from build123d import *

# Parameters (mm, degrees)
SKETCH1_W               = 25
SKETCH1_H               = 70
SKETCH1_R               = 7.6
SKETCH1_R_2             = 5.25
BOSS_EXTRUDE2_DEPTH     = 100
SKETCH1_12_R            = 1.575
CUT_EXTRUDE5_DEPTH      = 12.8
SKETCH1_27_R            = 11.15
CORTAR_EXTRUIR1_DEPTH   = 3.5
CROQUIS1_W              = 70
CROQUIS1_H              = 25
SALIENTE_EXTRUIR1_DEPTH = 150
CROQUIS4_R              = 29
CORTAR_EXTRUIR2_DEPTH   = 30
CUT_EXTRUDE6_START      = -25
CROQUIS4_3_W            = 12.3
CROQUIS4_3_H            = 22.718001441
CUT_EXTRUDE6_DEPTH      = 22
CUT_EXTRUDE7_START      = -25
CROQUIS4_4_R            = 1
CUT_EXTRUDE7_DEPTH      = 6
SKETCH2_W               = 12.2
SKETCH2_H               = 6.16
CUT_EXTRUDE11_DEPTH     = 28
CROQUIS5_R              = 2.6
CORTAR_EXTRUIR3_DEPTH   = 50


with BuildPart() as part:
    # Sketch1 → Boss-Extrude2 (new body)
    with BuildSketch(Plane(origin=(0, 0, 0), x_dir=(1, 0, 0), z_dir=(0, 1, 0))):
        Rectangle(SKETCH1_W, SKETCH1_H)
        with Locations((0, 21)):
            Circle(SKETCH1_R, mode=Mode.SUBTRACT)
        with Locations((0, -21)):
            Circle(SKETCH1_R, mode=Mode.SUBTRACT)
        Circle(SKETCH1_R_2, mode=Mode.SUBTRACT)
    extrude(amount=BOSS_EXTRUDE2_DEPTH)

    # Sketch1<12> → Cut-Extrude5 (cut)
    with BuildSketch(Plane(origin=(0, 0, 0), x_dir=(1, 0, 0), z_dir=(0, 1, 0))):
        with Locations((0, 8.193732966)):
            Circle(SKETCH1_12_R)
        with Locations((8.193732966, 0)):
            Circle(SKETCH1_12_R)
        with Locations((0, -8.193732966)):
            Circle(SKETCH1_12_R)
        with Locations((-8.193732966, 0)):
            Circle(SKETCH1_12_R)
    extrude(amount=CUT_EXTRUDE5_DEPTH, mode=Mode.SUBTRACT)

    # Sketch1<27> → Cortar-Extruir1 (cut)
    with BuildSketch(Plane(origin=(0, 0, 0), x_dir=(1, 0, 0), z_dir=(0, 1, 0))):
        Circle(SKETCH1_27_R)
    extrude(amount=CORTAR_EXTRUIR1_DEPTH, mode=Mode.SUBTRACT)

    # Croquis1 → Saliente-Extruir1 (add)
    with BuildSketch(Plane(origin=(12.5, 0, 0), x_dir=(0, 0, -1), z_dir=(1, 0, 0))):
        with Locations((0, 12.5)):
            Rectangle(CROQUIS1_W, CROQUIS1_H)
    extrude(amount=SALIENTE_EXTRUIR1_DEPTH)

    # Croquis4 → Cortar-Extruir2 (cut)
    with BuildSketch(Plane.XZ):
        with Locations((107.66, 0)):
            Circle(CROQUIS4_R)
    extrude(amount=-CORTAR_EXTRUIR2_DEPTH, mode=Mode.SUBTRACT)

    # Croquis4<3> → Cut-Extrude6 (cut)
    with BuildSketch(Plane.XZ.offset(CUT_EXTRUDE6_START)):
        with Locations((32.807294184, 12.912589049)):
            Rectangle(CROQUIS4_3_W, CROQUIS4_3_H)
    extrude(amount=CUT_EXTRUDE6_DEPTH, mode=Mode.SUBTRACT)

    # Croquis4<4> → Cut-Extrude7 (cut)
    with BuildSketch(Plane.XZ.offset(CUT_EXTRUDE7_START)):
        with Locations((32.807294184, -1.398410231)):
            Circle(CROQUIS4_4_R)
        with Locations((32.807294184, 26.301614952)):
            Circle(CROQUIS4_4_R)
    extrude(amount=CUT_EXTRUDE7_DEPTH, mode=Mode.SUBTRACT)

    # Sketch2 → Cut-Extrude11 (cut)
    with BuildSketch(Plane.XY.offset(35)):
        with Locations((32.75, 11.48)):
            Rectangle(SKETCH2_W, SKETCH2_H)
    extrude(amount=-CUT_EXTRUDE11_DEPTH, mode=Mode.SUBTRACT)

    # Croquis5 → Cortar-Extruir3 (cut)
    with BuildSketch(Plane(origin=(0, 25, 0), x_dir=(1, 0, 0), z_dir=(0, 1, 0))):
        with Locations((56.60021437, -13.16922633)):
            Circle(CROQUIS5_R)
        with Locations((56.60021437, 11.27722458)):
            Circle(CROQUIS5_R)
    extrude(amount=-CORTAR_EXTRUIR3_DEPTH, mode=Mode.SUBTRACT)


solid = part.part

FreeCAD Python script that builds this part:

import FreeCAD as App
import Part
import Sketcher
from FreeCAD import Vector
Q = App.Units.Quantity


def add_polygon(sketch, points):
    """Adds a closed chain of lines whose ends are joined by coincident constraints."""
    first, n = sketch.GeometryCount, len(points)
    for a, b in zip(points, points[1:] + points[:1]):
        sketch.addGeometry(Part.LineSegment(App.Vector(*a, 0), App.Vector(*b, 0)), False)
    for i in range(n):
        sketch.addConstraint(Sketcher.Constraint("Coincident", first + i, 2, first + (i + 1) % n, 1))

doc = App.newDocument("Part")
body = doc.addObject("PartDesign::Body", "Body")

# Sketch on XZ plane
sketch1 = body.newObject("Sketcher::SketchObject", "Sketch")
sketch1.AttachmentSupport = (doc.getObject("XZ_Plane"), [""])
sketch1.MapMode = "FlatFace"
add_polygon(sketch1, [(-12, -35), (-12, 35), (12, 35), (12, -35)])  # lines 0-3
sketch1.addGeometry(Part.Circle(Vector(0, 21, 0), Vector(0, 0, 1), 8), False)  # 4
sketch1.addGeometry(Part.Circle(Vector(0, 0, 0), Vector(0, 0, 1), 5), False)  # 5
sketch1.addGeometry(Part.Circle(Vector(0, -21, 0), Vector(0, 0, 1), 8), False)  # 6
sketch1.addConstraint(Sketcher.Constraint("Vertical", 0))
sketch1.addConstraint(Sketcher.Constraint("Horizontal", 1))
sketch1.addConstraint(Sketcher.Constraint("Vertical", 2))
sketch1.addConstraint(Sketcher.Constraint("Horizontal", 3))
sketch1.addConstraint(Sketcher.Constraint("Coincident", 5, 3, -1, 1))
sketch1.addConstraint(Sketcher.Constraint("Equal", 4, 6))
sketch1.addConstraint(Sketcher.Constraint("Symmetric", 4, 3, 6, 3, -1, 1))
sketch1.addConstraint(Sketcher.Constraint("Symmetric", 0, 2, 2, 2, -1, 1))
sketch1.addConstraint(Sketcher.Constraint("PointOnObject", 4, 3, -2))
sketch1.addConstraint(Sketcher.Constraint("Diameter", 4, Q("15.2 mm")))
sketch1.addConstraint(Sketcher.Constraint("Diameter", 5, Q("10.5 mm")))
sketch1.addConstraint(Sketcher.Constraint("DistanceX", 1, 1, 1, 2, Q("25 mm")))
sketch1.addConstraint(Sketcher.Constraint("DistanceY", 0, 1, 0, 2, Q("70 mm")))
sketch1.addConstraint(Sketcher.Constraint("DistanceY", -1, 1, 4, 3, Q("21 mm")))
pad1 = body.newObject("PartDesign::Pad", "Pad")
pad1.Profile = sketch1
pad1.Length = 100
pad1.Reversed = True

# Sketch on XZ plane
sketch2 = body.newObject("Sketcher::SketchObject", "Sketch001")
sketch2.AttachmentSupport = (doc.getObject("XZ_Plane"), [""])
sketch2.MapMode = "FlatFace"
sketch2.addGeometry(Part.Circle(Vector(0, -8.2, 0), Vector(0, 0, 1), 1.6), False)
sketch2.addGeometry(Part.Circle(Vector(8.2, 0, 0), Vector(0, 0, 1), 1.6), False)
sketch2.addGeometry(Part.Circle(Vector(0, 8.2, 0), Vector(0, 0, 1), 1.6), False)
sketch2.addGeometry(Part.Circle(Vector(-8.2, 0, 0), Vector(0, 0, 1), 1.6), False)
sketch2.addConstraint(Sketcher.Constraint("Equal", 0, 1))
sketch2.addConstraint(Sketcher.Constraint("Equal", 1, 2))
sketch2.addConstraint(Sketcher.Constraint("Equal", 2, 3))
sketch2.addConstraint(Sketcher.Constraint("Symmetric", 0, 3, 2, 3, -1, 1))
sketch2.addConstraint(Sketcher.Constraint("Symmetric", 1, 3, 3, 3, -1, 1))
sketch2.addConstraint(Sketcher.Constraint("PointOnObject", 0, 3, -2))
sketch2.addConstraint(Sketcher.Constraint("PointOnObject", 1, 3, -1))
sketch2.addConstraint(Sketcher.Constraint("Diameter", 0, Q("3.15 mm")))
sketch2.addConstraint(Sketcher.Constraint("DistanceY", 0, 3, -1, 1, Q("8.193733 mm")))
sketch2.addConstraint(Sketcher.Constraint("DistanceX", -1, 1, 1, 3, Q("8.193733 mm")))
pocket1 = body.newObject("PartDesign::Pocket", "Pocket")
pocket1.Profile = sketch2
pocket1.Length = 12.8

# Sketch on XZ plane
sketch3 = body.newObject("Sketcher::SketchObject", "Sketch002")
sketch3.AttachmentSupport = (doc.getObject("XZ_Plane"), [""])
sketch3.MapMode = "FlatFace"
sketch3.addGeometry(Part.Circle(Vector(0, 0, 0), Vector(0, 0, 1), 11), False)
sketch3.addConstraint(Sketcher.Constraint("Coincident", 0, 3, -1, 1))
sketch3.addConstraint(Sketcher.Constraint("Diameter", 0, Q("22.3 mm")))
pocket2 = body.newObject("PartDesign::Pocket", "Pocket001")
pocket2.Profile = sketch3
pocket2.Length = 3.5

# Sketch on YZ plane
sketch4 = body.newObject("Sketcher::SketchObject", "Sketch003")
sketch4.AttachmentSupport = (doc.getObject("YZ_Plane"), [""])
sketch4.MapMode = "FlatFace"
sketch4.AttachmentOffset = App.Placement(Vector(0, 0, 12.5), App.Rotation())
add_polygon(sketch4, [(25, 35), (0, 35), (0, -35), (25, -35)])  # lines 0-3
sketch4.addConstraint(Sketcher.Constraint("Horizontal", 0))
sketch4.addConstraint(Sketcher.Constraint("Vertical", 1))
sketch4.addConstraint(Sketcher.Constraint("Horizontal", 2))
sketch4.addConstraint(Sketcher.Constraint("Vertical", 3))
sketch4.addConstraint(Sketcher.Constraint("Symmetric", 0, 2, 1, 2, -1, 1))
sketch4.addConstraint(Sketcher.Constraint("DistanceX", 0, 2, 0, 1, Q("25 mm")))
sketch4.addConstraint(Sketcher.Constraint("DistanceY", 1, 2, 1, 1, Q("70 mm")))
pad2 = body.newObject("PartDesign::Pad", "Pad001")
pad2.Profile = sketch4
pad2.Length = 150

# Sketch on XZ plane
sketch5 = body.newObject("Sketcher::SketchObject", "Sketch004")
sketch5.AttachmentSupport = (doc.getObject("XZ_Plane"), [""])
sketch5.MapMode = "FlatFace"
sketch5.addGeometry(Part.Circle(Vector(108, 0, 0), Vector(0, 0, 1), 29), False)
sketch5.addConstraint(Sketcher.Constraint("PointOnObject", 0, 3, -1))
sketch5.addConstraint(Sketcher.Constraint("Diameter", 0, Q("58 mm")))
sketch5.addConstraint(Sketcher.Constraint("DistanceX", -1, 1, 0, 3, Q("107.66 mm")))
pocket3 = body.newObject("PartDesign::Pocket", "Pocket002")
pocket3.Profile = sketch5
pocket3.Length = 30

# Sketch on XZ plane
sketch6 = body.newObject("Sketcher::SketchObject", "Sketch005")
sketch6.AttachmentSupport = (doc.getObject("XZ_Plane"), [""])
sketch6.MapMode = "FlatFace"
sketch6.AttachmentOffset = App.Placement(Vector(0, 0, -25), App.Rotation())
add_polygon(sketch6, [(27, 24), (27, 2), (39, 2), (39, 24)])  # lines 0-3
sketch6.addConstraint(Sketcher.Constraint("Vertical", 0))
sketch6.addConstraint(Sketcher.Constraint("Horizontal", 1))
sketch6.addConstraint(Sketcher.Constraint("Vertical", 2))
sketch6.addConstraint(Sketcher.Constraint("Horizontal", 3))
sketch6.addConstraint(Sketcher.Constraint("DistanceX", 1, 1, 1, 2, Q("12.3 mm")))
sketch6.addConstraint(Sketcher.Constraint("DistanceY", 0, 2, 0, 1, Q("22.718001 mm")))
sketch6.addConstraint(Sketcher.Constraint("DistanceY", -1, 1, 0, 2, Q("1.553588 mm")))
sketch6.addConstraint(Sketcher.Constraint("DistanceX", -1, 1, 0, 2, Q("26.657294 mm")))
pocket4 = body.newObject("PartDesign::Pocket", "Pocket003")
pocket4.Profile = sketch6
pocket4.Length = 22
pocket4.Reversed = True

# Sketch on XZ plane
sketch7 = body.newObject("Sketcher::SketchObject", "Sketch006")
sketch7.AttachmentSupport = (doc.getObject("XZ_Plane"), [""])
sketch7.MapMode = "FlatFace"
sketch7.AttachmentOffset = App.Placement(Vector(0, 0, -25), App.Rotation())
sketch7.addGeometry(Part.Circle(Vector(32.8, -1.4, 0), Vector(0, 0, 1), 1), False)
sketch7.addGeometry(Part.Circle(Vector(32.8, 26.3, 0), Vector(0, 0, 1), 1), False)
sketch7.addConstraint(Sketcher.Constraint("Equal", 0, 1))
sketch7.addConstraint(Sketcher.Constraint("Vertical", 0, 3, 1, 3))
sketch7.addConstraint(Sketcher.Constraint("Diameter", 0, Q("2 mm")))
sketch7.addConstraint(Sketcher.Constraint("DistanceY", 0, 3, -1, 1, Q("1.39841 mm")))
sketch7.addConstraint(Sketcher.Constraint("DistanceX", -1, 1, 0, 3, Q("32.807294 mm")))
sketch7.addConstraint(Sketcher.Constraint("DistanceY", -1, 1, 1, 3, Q("26.301615 mm")))
pocket5 = body.newObject("PartDesign::Pocket", "Pocket004")
pocket5.Profile = sketch7
pocket5.Length = 6
pocket5.Reversed = True

# Sketch on XY plane
sketch8 = body.newObject("Sketcher::SketchObject", "Sketch007")
sketch8.AttachmentSupport = (doc.getObject("XY_Plane"), [""])
sketch8.MapMode = "FlatFace"
sketch8.AttachmentOffset = App.Placement(Vector(0, 0, 35), App.Rotation())
add_polygon(sketch8, [(27, 15), (27, 8), (39, 8), (39, 15)])  # lines 0-3
sketch8.addConstraint(Sketcher.Constraint("Vertical", 0))
sketch8.addConstraint(Sketcher.Constraint("Horizontal", 1))
sketch8.addConstraint(Sketcher.Constraint("Vertical", 2))
sketch8.addConstraint(Sketcher.Constraint("Horizontal", 3))
sketch8.addConstraint(Sketcher.Constraint("DistanceX", 1, 1, 1, 2, Q("12.2 mm")))
sketch8.addConstraint(Sketcher.Constraint("DistanceY", 0, 2, 0, 1, Q("6.16 mm")))
sketch8.addConstraint(Sketcher.Constraint("DistanceY", -1, 1, 0, 2, Q("8.4 mm")))
sketch8.addConstraint(Sketcher.Constraint("DistanceX", -1, 1, 0, 2, Q("26.65 mm")))
pocket6 = body.newObject("PartDesign::Pocket", "Pocket005")
pocket6.Profile = sketch8
pocket6.Length = 28

# Sketch on XZ plane
sketch9 = body.newObject("Sketcher::SketchObject", "Sketch008")
sketch9.AttachmentSupport = (doc.getObject("XZ_Plane"), [""])
sketch9.MapMode = "FlatFace"
sketch9.AttachmentOffset = App.Placement(Vector(0, 0, -25), App.Rotation())
sketch9.addGeometry(Part.Circle(Vector(56.6, 13.2, 0), Vector(0, 0, 1), 2.6), False)
sketch9.addGeometry(Part.Circle(Vector(56.6, -11.3, 0), Vector(0, 0, 1), 2.6), False)
sketch9.addConstraint(Sketcher.Constraint("Equal", 0, 1))
sketch9.addConstraint(Sketcher.Constraint("Vertical", 0, 3, 1, 3))
sketch9.addConstraint(Sketcher.Constraint("Diameter", 0, Q("5.2 mm")))
sketch9.addConstraint(Sketcher.Constraint("DistanceY", 1, 3, 0, 3, Q("24.446451 mm")))
sketch9.addConstraint(Sketcher.Constraint("DistanceX", -1, 1, 0, 3, Q("56.600214 mm")))
sketch9.addConstraint(Sketcher.Constraint("DistanceY", -1, 1, 0, 3, Q("13.169226 mm")))
pocket7 = body.newObject("PartDesign::Pocket", "Pocket006")
pocket7.Profile = sketch9
pocket7.Length = 50
pocket7.Reversed = True

doc.recompute()
